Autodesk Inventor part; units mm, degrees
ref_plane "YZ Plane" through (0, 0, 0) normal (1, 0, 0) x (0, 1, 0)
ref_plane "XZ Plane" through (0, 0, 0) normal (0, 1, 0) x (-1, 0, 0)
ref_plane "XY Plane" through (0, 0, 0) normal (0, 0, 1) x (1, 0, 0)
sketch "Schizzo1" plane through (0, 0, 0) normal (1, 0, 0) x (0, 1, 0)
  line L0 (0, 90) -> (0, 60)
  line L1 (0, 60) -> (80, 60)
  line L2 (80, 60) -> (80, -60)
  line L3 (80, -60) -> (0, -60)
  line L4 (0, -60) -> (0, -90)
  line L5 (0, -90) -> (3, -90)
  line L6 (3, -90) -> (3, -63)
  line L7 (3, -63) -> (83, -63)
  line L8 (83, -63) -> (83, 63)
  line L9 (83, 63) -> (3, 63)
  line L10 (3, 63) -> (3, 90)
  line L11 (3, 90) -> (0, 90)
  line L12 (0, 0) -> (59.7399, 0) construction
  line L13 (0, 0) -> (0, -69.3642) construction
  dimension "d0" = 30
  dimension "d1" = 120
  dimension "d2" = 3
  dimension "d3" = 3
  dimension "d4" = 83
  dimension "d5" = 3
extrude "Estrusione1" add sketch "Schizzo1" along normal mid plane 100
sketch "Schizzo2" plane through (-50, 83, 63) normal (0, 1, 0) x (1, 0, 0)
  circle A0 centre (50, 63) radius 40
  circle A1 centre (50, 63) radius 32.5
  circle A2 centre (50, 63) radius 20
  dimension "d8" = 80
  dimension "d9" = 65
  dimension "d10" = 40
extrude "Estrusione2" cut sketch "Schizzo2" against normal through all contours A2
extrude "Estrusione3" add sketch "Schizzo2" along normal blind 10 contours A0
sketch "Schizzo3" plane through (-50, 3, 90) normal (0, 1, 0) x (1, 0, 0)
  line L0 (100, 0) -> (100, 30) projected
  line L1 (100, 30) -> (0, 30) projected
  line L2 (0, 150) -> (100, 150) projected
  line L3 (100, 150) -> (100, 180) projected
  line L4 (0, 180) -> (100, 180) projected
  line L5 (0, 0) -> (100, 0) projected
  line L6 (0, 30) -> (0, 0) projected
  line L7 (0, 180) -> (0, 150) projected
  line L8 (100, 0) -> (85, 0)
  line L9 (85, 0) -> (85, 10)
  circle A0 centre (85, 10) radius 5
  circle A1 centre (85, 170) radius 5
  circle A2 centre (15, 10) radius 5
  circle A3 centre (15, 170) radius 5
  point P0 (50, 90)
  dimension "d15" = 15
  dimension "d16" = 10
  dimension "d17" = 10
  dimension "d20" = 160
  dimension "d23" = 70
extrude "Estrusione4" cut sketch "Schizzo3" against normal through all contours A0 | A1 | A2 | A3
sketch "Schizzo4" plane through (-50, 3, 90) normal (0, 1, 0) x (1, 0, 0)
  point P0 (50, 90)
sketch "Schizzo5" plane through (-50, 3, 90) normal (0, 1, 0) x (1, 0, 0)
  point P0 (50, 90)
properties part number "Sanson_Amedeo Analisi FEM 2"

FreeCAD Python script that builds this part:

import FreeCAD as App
import Part
import Sketcher

V = App.Vector


def add_polygon(sketch, points):
    """Adds a closed chain of lines whose ends are joined by coincident constraints."""
    first, n = sketch.GeometryCount, len(points)
    for a, b in zip(points, points[1:] + points[:1]):
        sketch.addGeometry(Part.LineSegment(App.Vector(*a, 0), App.Vector(*b, 0)), False)
    for i in range(n):
        sketch.addConstraint(Sketcher.Constraint("Coincident", first + i, 2, first + (i + 1) % n, 1))

doc = App.newDocument("Part")
body = doc.addObject("PartDesign::Body", "Body")

# Sketch on YZ plane
sketch1 = body.newObject("Sketcher::SketchObject", "Sketch")
sketch1.AttachmentSupport = (doc.getObject("YZ_Plane"), [""])
sketch1.MapMode = "FlatFace"
add_polygon(sketch1, [(3, 90), (0, 90), (0, 60), (80, 60), (80, -60), (0, -60), (0, -90), (3, -90), (3, -63), (83, -63), (83, 63), (3, 63)])  # lines 0-11
sketch1.addConstraint([
    Sketcher.Constraint("Horizontal", 0),
    Sketcher.Constraint("Vertical", 1),
    Sketcher.Constraint("Horizontal", 2),
    Sketcher.Constraint("Vertical", 3),
    Sketcher.Constraint("Horizontal", 4),
    Sketcher.Constraint("Vertical", 5),
    Sketcher.Constraint("Horizontal", 6),
    Sketcher.Constraint("Vertical", 7),
    Sketcher.Constraint("Horizontal", 8),
    Sketcher.Constraint("Vertical", 9),
    Sketcher.Constraint("Horizontal", 10),
    Sketcher.Constraint("Vertical", 11),
    Sketcher.Constraint("Symmetric", 1, 2, 4, 2, -1, 1),
    Sketcher.Constraint("Symmetric", 0, 2, 5, 2, -1),
    Sketcher.Constraint("Symmetric", 7, 2, 10, 2, -1),
    Sketcher.Constraint("Equal", 4, 8),
    Sketcher.Constraint("DistanceX", 0, 2, 0, 1, 3.0),
    Sketcher.Constraint("DistanceY", 1, 2, 1, 1, 30.0),
    Sketcher.Constraint("DistanceY", 3, 2, 3, 1, 120.0),
    Sketcher.Constraint("DistanceX", -1, 1, 8, 2, 83.0),
    Sketcher.Constraint("DistanceY", 7, 2, 4, 2, 3.0),
])
pad1 = body.newObject("PartDesign::Pad", "Pad")
pad1.Profile = sketch1
pad1.Length = 100
pad1.Midplane = True

# Sketch on XZ plane
sketch2 = body.newObject("Sketcher::SketchObject", "Sketch001")
sketch2.AttachmentSupport = (doc.getObject("XZ_Plane"), [""])
sketch2.MapMode = "FlatFace"
sketch2.AttachmentOffset = App.Placement(V(0, 0, -83), App.Rotation())
sketch2.addGeometry(Part.Circle(V(0, 0, 0), V(0, 0, 1), 20), False)
sketch2.addConstraint([
    Sketcher.Constraint("Coincident", 0, 3, -1, 1),
    Sketcher.Constraint("Diameter", 0, 40.0),
])
pocket1 = body.newObject("PartDesign::Pocket", "Pocket")
pocket1.Profile = sketch2
pocket1.Type = "ThroughAll"
pocket1.Reversed = True

# Sketch on XZ plane
sketch3 = body.newObject("Sketcher::SketchObject", "Sketch002")
sketch3.AttachmentSupport = (doc.getObject("XZ_Plane"), [""])
sketch3.MapMode = "FlatFace"
sketch3.AttachmentOffset = App.Placement(V(0, 0, -83), App.Rotation())
sketch3.addGeometry([
    Part.Circle(V(0, 0, 0), V(0, 0, 1), 40),
    Part.Circle(V(0, 0, 0), V(0, 0, 1), 32.5),
], False)
sketch3.addConstraint([
    Sketcher.Constraint("Coincident", 0, 3, -1, 1),
    Sketcher.Constraint("Coincident", 1, 3, -1, 1),
    Sketcher.Constraint("Diameter", 0, 80.0),
    Sketcher.Constraint("Diameter", 1, 65.0),
])
pad2 = body.newObject("PartDesign::Pad", "Pad001")
pad2.Profile = sketch3
pad2.Length = 10
pad2.Reversed = True

# Sketch on XZ plane
sketch4 = body.newObject("Sketcher::SketchObject", "Sketch003")
sketch4.AttachmentSupport = (doc.getObject("XZ_Plane"), [""])
sketch4.MapMode = "FlatFace"
sketch4.AttachmentOffset = App.Placement(V(0, 0, -3), App.Rotation())
sketch4.addGeometry([
    Part.Circle(V(35, 80, 0), V(0, 0, 1), 5),
    Part.Circle(V(35, -80, 0), V(0, 0, 1), 5),
    Part.Circle(V(-35, 80, 0), V(0, 0, 1), 5),
    Part.Circle(V(-35, -80, 0), V(0, 0, 1), 5),
], False)
sketch4.addConstraint([
    Sketcher.Constraint("Equal", 0, 1),
    Sketcher.Constraint("Equal", 1, 2),
    Sketcher.Constraint("Equal", 2, 3),
    Sketcher.Constraint("Symmetric", 1, 3, 2, 3, -1, 1),
    Sketcher.Constraint("Symmetric", 0, 3, 3, 3, -1, 1),
    Sketcher.Constraint("Symmetric", 0, 3, 2, 3, -2),
    Sketcher.Constraint("Diameter", 0, 10.0),
    Sketcher.Constraint("DistanceY", 1, 3, 0, 3, 160.0),
    Sketcher.Constraint("DistanceX", 2, 3, 0, 3, 70.0),
])
pocket2 = body.newObject("PartDesign::Pocket", "Pocket001")
pocket2.Profile = sketch4
pocket2.Type = "ThroughAll"
pocket2.Reversed = True

doc.recompute()
